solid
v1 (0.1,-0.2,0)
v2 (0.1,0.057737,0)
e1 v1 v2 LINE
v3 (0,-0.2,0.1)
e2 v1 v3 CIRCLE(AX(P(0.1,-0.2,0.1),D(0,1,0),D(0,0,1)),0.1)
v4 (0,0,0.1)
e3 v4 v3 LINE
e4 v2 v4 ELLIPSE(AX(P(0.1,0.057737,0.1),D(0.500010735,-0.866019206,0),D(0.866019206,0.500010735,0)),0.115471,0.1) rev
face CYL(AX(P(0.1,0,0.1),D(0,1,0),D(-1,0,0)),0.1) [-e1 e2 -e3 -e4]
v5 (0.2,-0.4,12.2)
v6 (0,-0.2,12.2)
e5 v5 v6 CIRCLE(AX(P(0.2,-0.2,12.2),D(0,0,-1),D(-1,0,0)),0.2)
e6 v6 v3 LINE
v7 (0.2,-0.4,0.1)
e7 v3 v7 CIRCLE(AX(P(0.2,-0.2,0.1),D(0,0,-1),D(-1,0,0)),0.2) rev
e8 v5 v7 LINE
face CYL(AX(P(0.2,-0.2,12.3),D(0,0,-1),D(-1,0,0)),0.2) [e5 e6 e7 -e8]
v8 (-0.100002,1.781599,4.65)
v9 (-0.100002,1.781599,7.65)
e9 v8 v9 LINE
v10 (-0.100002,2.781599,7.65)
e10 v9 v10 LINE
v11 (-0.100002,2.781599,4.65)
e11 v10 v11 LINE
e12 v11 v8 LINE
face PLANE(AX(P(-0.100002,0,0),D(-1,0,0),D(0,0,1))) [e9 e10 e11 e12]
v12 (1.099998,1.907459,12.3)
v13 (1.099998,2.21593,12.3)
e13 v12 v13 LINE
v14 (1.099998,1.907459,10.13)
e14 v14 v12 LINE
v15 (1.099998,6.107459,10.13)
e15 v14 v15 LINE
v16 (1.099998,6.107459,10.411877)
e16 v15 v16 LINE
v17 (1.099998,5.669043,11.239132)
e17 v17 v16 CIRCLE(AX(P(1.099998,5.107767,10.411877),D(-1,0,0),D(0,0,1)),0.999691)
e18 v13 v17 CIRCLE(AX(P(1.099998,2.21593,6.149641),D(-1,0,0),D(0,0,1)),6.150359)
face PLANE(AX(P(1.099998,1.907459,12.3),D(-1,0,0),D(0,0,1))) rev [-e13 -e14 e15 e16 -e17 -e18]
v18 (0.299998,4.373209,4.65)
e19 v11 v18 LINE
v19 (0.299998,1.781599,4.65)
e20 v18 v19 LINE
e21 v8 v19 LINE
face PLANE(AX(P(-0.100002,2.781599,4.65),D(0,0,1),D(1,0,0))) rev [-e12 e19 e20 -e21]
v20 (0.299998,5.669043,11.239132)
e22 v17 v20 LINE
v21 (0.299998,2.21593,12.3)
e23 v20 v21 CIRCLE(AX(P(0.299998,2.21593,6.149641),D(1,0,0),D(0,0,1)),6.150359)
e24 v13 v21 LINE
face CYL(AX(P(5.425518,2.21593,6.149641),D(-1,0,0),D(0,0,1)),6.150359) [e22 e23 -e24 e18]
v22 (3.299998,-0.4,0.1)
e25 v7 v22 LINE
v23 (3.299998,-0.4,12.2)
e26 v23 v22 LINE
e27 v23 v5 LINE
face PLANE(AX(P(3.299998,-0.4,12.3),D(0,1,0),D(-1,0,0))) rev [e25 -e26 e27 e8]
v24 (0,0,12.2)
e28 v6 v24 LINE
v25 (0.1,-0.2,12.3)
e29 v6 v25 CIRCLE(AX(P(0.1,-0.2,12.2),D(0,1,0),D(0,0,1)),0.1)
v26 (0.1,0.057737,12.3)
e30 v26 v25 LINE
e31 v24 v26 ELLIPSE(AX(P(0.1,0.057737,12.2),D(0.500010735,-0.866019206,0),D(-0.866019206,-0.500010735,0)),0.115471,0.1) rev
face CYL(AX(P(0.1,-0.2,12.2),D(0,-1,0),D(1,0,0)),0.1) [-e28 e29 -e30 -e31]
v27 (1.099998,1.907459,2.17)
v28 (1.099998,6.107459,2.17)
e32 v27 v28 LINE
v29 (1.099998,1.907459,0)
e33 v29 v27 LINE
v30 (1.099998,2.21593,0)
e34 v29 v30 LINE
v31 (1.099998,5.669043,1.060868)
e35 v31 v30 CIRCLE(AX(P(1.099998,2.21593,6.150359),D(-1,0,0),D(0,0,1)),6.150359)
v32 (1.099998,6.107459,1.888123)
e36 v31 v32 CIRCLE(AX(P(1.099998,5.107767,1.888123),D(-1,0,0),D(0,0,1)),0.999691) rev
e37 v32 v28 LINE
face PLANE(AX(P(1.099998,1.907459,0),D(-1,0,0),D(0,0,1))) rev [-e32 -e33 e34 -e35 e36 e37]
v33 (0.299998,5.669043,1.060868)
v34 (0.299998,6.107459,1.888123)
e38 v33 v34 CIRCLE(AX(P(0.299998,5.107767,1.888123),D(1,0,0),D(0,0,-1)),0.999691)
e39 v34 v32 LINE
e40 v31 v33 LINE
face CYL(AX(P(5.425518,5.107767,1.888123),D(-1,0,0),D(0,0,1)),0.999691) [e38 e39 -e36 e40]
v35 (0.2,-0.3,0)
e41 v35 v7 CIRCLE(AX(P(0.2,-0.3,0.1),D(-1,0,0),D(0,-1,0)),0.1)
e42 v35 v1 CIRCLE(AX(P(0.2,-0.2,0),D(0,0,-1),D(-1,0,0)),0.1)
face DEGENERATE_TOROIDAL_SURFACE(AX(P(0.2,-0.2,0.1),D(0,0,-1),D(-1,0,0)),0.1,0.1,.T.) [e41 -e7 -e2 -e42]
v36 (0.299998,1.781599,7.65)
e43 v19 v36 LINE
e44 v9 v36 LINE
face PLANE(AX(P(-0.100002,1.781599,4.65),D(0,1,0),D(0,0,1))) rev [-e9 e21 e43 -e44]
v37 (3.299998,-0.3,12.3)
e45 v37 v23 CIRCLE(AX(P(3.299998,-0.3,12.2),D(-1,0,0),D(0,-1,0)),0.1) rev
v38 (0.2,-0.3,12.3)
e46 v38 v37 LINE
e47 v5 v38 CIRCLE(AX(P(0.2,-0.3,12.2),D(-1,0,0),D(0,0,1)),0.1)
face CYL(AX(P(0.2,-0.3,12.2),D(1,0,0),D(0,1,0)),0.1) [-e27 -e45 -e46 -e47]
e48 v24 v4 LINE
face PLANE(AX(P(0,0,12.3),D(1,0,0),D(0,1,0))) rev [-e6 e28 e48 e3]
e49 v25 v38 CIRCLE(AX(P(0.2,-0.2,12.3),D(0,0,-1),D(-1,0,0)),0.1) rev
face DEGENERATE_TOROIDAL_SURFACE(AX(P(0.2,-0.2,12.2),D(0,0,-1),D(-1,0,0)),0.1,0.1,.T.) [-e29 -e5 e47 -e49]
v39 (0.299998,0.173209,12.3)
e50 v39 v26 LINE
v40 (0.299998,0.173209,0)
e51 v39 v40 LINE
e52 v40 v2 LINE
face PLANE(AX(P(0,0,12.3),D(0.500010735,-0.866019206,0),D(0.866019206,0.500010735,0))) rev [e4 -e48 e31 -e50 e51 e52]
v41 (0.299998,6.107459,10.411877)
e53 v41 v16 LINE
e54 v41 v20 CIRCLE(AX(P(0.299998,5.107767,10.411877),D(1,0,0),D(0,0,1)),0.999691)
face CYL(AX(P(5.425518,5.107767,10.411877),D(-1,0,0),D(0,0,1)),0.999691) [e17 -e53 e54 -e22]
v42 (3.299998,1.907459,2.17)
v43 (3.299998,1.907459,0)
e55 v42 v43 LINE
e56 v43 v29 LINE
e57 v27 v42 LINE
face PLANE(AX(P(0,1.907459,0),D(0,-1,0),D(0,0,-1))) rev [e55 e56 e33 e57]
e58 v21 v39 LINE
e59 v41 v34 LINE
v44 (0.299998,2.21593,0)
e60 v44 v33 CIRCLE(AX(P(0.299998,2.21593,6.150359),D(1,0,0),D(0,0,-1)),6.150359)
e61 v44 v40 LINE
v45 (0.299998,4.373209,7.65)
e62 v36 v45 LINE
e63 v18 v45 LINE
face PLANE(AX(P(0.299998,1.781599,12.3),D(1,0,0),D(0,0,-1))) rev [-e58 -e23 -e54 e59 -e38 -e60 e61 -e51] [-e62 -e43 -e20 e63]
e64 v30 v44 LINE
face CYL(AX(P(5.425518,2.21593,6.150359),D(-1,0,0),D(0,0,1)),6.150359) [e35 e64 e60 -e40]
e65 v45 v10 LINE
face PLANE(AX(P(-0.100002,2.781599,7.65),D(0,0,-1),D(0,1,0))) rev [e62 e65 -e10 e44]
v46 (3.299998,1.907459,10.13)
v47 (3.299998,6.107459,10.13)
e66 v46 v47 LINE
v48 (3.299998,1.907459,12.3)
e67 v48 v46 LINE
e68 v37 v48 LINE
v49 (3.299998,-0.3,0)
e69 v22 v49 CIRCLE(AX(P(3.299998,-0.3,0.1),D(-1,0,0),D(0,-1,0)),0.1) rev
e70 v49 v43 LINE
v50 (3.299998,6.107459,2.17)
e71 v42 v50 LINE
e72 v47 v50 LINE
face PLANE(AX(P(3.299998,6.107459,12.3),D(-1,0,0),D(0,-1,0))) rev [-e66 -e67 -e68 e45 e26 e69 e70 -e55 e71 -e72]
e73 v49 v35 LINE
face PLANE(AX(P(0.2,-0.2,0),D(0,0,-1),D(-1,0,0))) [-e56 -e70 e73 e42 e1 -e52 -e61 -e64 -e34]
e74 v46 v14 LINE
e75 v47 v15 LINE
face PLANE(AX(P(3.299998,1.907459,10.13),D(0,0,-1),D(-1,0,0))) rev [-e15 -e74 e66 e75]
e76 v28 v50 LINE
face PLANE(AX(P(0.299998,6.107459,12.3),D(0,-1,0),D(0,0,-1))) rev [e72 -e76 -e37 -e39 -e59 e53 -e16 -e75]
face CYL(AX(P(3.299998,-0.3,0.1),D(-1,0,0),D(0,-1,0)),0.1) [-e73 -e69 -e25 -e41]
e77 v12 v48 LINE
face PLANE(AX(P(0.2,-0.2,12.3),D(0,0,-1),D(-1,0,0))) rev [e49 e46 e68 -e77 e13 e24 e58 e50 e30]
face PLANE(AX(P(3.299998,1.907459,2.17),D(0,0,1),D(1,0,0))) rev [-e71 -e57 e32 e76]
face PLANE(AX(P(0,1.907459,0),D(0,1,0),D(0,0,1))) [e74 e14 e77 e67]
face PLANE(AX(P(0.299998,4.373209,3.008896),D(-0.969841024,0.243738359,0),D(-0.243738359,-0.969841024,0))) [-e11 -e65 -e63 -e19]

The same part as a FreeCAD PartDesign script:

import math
import FreeCAD as App
import Part
import Sketcher

V = App.Vector


def edges_at(feature, points):
    """Names of the edges that pass closest to the given points."""
    edges = feature.Shape.Edges
    near = lambda p: min(range(len(edges)), key=lambda i: edges[i].distToShape(Part.Vertex(*p))[0])
    return sorted({f"Edge{near(p) + 1}" for p in points})


def add_polygon(sketch, points):
    """Adds a closed chain of lines whose ends are joined by coincident constraints."""
    first, n = sketch.GeometryCount, len(points)
    for a, b in zip(points, points[1:] + points[:1]):
        sketch.addGeometry(Part.LineSegment(App.Vector(*a, 0), App.Vector(*b, 0)), False)
    for i in range(n):
        sketch.addConstraint(Sketcher.Constraint("Coincident", first + i, 2, first + (i + 1) % n, 1))

doc = App.newDocument("Part")
body = doc.addObject("PartDesign::Body", "Body")

# Sketch on XY plane
sketch1 = body.newObject("Sketcher::SketchObject", "Sketch")
sketch1.AttachmentSupport = (doc.getObject("XY_Plane"), [""])
sketch1.MapMode = "FlatFace"
sketch1.addGeometry(Part.LineSegment(V(0.3, 0.17, 0), V(0, 0, 0)), False)
sketch1.addGeometry(Part.LineSegment(V(0, 0, 0), V(0, -0.2, 0)), False)
sketch1.addGeometry(Part.ArcOfCircle(Part.Circle(V(0.2, -0.2, 0), V(0, 0, 1), 0.2), math.radians(-180), math.radians(-90)), False)
sketch1.addGeometry(Part.LineSegment(V(0.2, -0.4, 0), V(3.3, -0.4, 0)), False)
sketch1.addGeometry(Part.LineSegment(V(3.3, -0.4, 0), V(3.3, 6.11, 0)), False)
sketch1.addGeometry(Part.LineSegment(V(3.3, 6.11, 0), V(0.3, 6.11, 0)), False)
sketch1.addGeometry(Part.LineSegment(V(0.3, 6.11, 0), V(0.3, 0.17, 0)), False)
sketch1.addConstraint(Sketcher.Constraint("Coincident", 0, 2, 1, 1))
sketch1.addConstraint(Sketcher.Constraint("Tangent", 1, 2, 2, 1))
sketch1.addConstraint(Sketcher.Constraint("Tangent", 2, 2, 3, 1))
sketch1.addConstraint(Sketcher.Constraint("Coincident", 3, 2, 4, 1))
sketch1.addConstraint(Sketcher.Constraint("Coincident", 4, 2, 5, 1))
sketch1.addConstraint(Sketcher.Constraint("Coincident", 5, 2, 6, 1))
sketch1.addConstraint(Sketcher.Constraint("Coincident", 6, 2, 0, 1))
sketch1.addConstraint(Sketcher.Constraint("Vertical", 1))
sketch1.addConstraint(Sketcher.Constraint("Horizontal", 3))
sketch1.addConstraint(Sketcher.Constraint("Vertical", 4))
sketch1.addConstraint(Sketcher.Constraint("Horizontal", 5))
sketch1.addConstraint(Sketcher.Constraint("Vertical", 6))
sketch1.addConstraint(Sketcher.Constraint("Coincident", 0, 2, -1, 1))
sketch1.addConstraint(Sketcher.Constraint("Radius", 2, 0.2))
sketch1.addConstraint(Sketcher.Constraint("DistanceX", 5, 2, 5, 1, 3.0))
sketch1.addConstraint(Sketcher.Constraint("DistanceY", 1, 2, 1, 1, 0.2))
sketch1.addConstraint(Sketcher.Constraint("DistanceY", 4, 1, 4, 2, 6.507459))
sketch1.addConstraint(Sketcher.Constraint("DistanceY", 6, 2, 6, 1, 5.93425))
sketch1.addConstraint(Sketcher.Constraint("Distance", 0, 0.34641))
pad1 = body.newObject("PartDesign::Pad", "Pad")
pad1.Profile = sketch1
pad1.Length = 12.3

# Sketch on XZ plane
sketch2 = body.newObject("Sketcher::SketchObject", "Sketch001")
sketch2.AttachmentSupport = (doc.getObject("XZ_Plane"), [""])
sketch2.MapMode = "FlatFace"
sketch2.AttachmentOffset = App.Placement(V(0, 0, -6.107459), App.Rotation())
add_polygon(sketch2, [(1.1, 0), (1.1, 2.2), (3.3, 2.2), (3.3, 0)])  # lines 0-3
add_polygon(sketch2, [(1.1, 10.1), (1.1, 12.3), (3.3, 12.3), (3.3, 10.1)])  # lines 4-7
sketch2.addConstraint(Sketcher.Constraint("Vertical", 0))
sketch2.addConstraint(Sketcher.Constraint("Horizontal", 1))
sketch2.addConstraint(Sketcher.Constraint("Vertical", 2))
sketch2.addConstraint(Sketcher.Constraint("Horizontal", 3))
sketch2.addConstraint(Sketcher.Constraint("Vertical", 4))
sketch2.addConstraint(Sketcher.Constraint("Horizontal", 5))
sketch2.addConstraint(Sketcher.Constraint("Vertical", 6))
sketch2.addConstraint(Sketcher.Constraint("Horizontal", 7))
sketch2.addConstraint(Sketcher.Constraint("PointOnObject", 2, 2, -1))
sketch2.addConstraint(Sketcher.Constraint("Vertical", 3, 2, 4, 2))
sketch2.addConstraint(Sketcher.Constraint("Vertical", 2, 2, 5, 2))
sketch2.addConstraint(Sketcher.Constraint("Equal", 2, 4))
sketch2.addConstraint(Sketcher.Constraint("DistanceX", 1, 1, 1, 2, 2.2))
sketch2.addConstraint(Sketcher.Constraint("DistanceY", 0, 1, 0, 2, 2.17))
sketch2.addConstraint(Sketcher.Constraint("DistanceY", -1, 1, 4, 2, 12.3))
sketch2.addConstraint(Sketcher.Constraint("DistanceX", -1, 1, 0, 2, 1.099998))
pocket1 = body.newObject("PartDesign::Pocket", "Pocket")
pocket1.Profile = sketch2
pocket1.Length = 4.2
pocket1.Reversed = True

# Sketch on YZ plane
sketch3 = body.newObject("Sketcher::SketchObject", "Sketch002")
sketch3.AttachmentSupport = (doc.getObject("YZ_Plane"), [""])
sketch3.MapMode = "FlatFace"
sketch3.AttachmentOffset = App.Placement(V(0, 0, 0.299998), App.Rotation())
sketch3.addGeometry(Part.LineSegment(V(6.1, 12.3, 0), V(6.1, 10.4, 0)), False)
sketch3.addGeometry(Part.ArcOfCircle(Part.Circle(V(5.1, 10.4, 0), V(0, 0, 1), 1), math.radians(0), math.radians(56)), False)
sketch3.addGeometry(Part.ArcOfCircle(Part.Circle(V(2.2, 6.1, 0), V(0, 0, 1), 6.2), math.radians(56), math.radians(90)), False)
sketch3.addGeometry(Part.LineSegment(V(2.2, 12.3, 0), V(6.1, 12.3, 0)), False)
sketch3.addGeometry(Part.LineSegment(V(6.1, 1.9, 0), V(6.1, 0, 0)), False)
sketch3.addGeometry(Part.LineSegment(V(6.1, 0, 0), V(2.2, 0, 0)), False)
sketch3.addGeometry(Part.ArcOfCircle(Part.Circle(V(2.2, 6.2, 0), V(0, 0, 1), 6.2), math.radians(-90), math.radians(-56)), False)
sketch3.addGeometry(Part.ArcOfCircle(Part.Circle(V(5.1, 1.9, 0), V(0, 0, 1), 1), math.radians(-56), math.radians(0)), False)
sketch3.addConstraint(Sketcher.Constraint("Coincident", 0, 2, 1, 1))
sketch3.addConstraint(Sketcher.Constraint("Tangent", 1, 2, 2, 1))
sketch3.addConstraint(Sketcher.Constraint("Tangent", 2, 2, 3, 1))
sketch3.addConstraint(Sketcher.Constraint("Coincident", 3, 2, 0, 1))
sketch3.addConstraint(Sketcher.Constraint("Coincident", 4, 2, 5, 1))
sketch3.addConstraint(Sketcher.Constraint("Tangent", 5, 2, 6, 1))
sketch3.addConstraint(Sketcher.Constraint("Tangent", 6, 2, 7, 1))
sketch3.addConstraint(Sketcher.Constraint("Coincident", 7, 2, 4, 1))
sketch3.addConstraint(Sketcher.Constraint("Vertical", 0))
sketch3.addConstraint(Sketcher.Constraint("Horizontal", 3))
sketch3.addConstraint(Sketcher.Constraint("Vertical", 4))
sketch3.addConstraint(Sketcher.Constraint("Horizontal", 5))
sketch3.addConstraint(Sketcher.Constraint("Equal", 2, 6))
sketch3.addConstraint(Sketcher.Constraint("Equal", 1, 7))
sketch3.addConstraint(Sketcher.Constraint("PointOnObject", 4, 2, -1))
sketch3.addConstraint(Sketcher.Constraint("Vertical", 2, 3, 6, 3))
sketch3.addConstraint(Sketcher.Constraint("Vertical", 1, 3, 7, 3))
sketch3.addConstraint(Sketcher.Constraint("Equal", 0, 4))
sketch3.addConstraint(Sketcher.Constraint("DistanceY", -1, 1, 2, 2, 12.3))
sketch3.addConstraint(Sketcher.Constraint("Radius", 1, 0.999691))
sketch3.addConstraint(Sketcher.Constraint("Radius", 2, 6.150359))
sketch3.addConstraint(Sketcher.Constraint("DistanceX", 3, 1, 3, 2, 3.891529))
sketch3.addConstraint(Sketcher.Constraint("DistanceY", 0, 2, 0, 1, 1.88842))
sketch3.addConstraint(Sketcher.Constraint("DistanceX", -1, 1, 2, 3, 2.21593))
pocket2 = body.newObject("PartDesign::Pocket", "Pocket001")
pocket2.Profile = sketch3
pocket2.Length = 0.8
pocket2.Reversed = True

# Sketch on YZ plane
sketch4 = body.newObject("Sketcher::SketchObject", "Sketch003")
sketch4.AttachmentSupport = (doc.getObject("YZ_Plane"), [""])
sketch4.MapMode = "FlatFace"
sketch4.AttachmentOffset = App.Placement(V(0, 0, 0.299998), App.Rotation())
add_polygon(sketch4, [(2.8, 4.7), (1.8, 4.7), (1.8, 7.7), (2.8, 7.7)])  # lines 0-3
sketch4.addConstraint(Sketcher.Constraint("Horizontal", 0))
sketch4.addConstraint(Sketcher.Constraint("Vertical", 1))
sketch4.addConstraint(Sketcher.Constraint("Horizontal", 2))
sketch4.addConstraint(Sketcher.Constraint("Vertical", 3))
sketch4.addConstraint(Sketcher.Constraint("DistanceX", 0, 2, 0, 1, 1.0))
sketch4.addConstraint(Sketcher.Constraint("DistanceY", 1, 1, 1, 2, 3.0))
sketch4.addConstraint(Sketcher.Constraint("DistanceY", -1, 1, 0, 2, 4.65))
sketch4.addConstraint(Sketcher.Constraint("DistanceX", -1, 1, 0, 2, 1.781599))
pad2 = body.newObject("PartDesign::Pad", "Pad001")
pad2.Profile = sketch4
pad2.Length = 0.4
pad2.Reversed = True

# Sketch on XY plane
sketch5 = body.newObject("Sketcher::SketchObject", "Sketch004")
sketch5.AttachmentSupport = (doc.getObject("XY_Plane"), [""])
sketch5.MapMode = "FlatFace"
sketch5.AttachmentOffset = App.Placement(V(0, 0, 7.65), App.Rotation())
add_polygon(sketch5, [(0.3, 2.78), (0.3, 4.37), (-0.1, 2.78)])  # lines 0-2
sketch5.addConstraint(Sketcher.Constraint("Vertical", 0))
sketch5.addConstraint(Sketcher.Constraint("Horizontal", 2))
sketch5.addConstraint(Sketcher.Constraint("DistanceX", 2, 1, 2, 2, 0.4))
sketch5.addConstraint(Sketcher.Constraint("DistanceY", 0, 1, 0, 2, 1.59161))
sketch5.addConstraint(Sketcher.Constraint("DistanceY", -1, 1, 1, 2, 2.781599))
sketch5.addConstraint(Sketcher.Constraint("DistanceX", -1, 1, 0, 2, 0.299998))
pad3 = body.newObject("PartDesign::Pad", "Pad002")
pad3.Profile = sketch5
pad3.Length = 3
pad3.Reversed = True
doc.recompute()

fillet = body.newObject("PartDesign::Fillet", "Fillet")
fillet.Base = (pad3, edges_at(pad3, [
    (1.75, -0.4, 12.3),
    (1.75, -0.4, 0),
    (0.059, -0.341, 0),
    (0, -0.1, 0),
    (0, -0.1, 12.3),
    (0.059, -0.341, 12.3),
]))
fillet.Radius = 0.1

doc.recompute()
